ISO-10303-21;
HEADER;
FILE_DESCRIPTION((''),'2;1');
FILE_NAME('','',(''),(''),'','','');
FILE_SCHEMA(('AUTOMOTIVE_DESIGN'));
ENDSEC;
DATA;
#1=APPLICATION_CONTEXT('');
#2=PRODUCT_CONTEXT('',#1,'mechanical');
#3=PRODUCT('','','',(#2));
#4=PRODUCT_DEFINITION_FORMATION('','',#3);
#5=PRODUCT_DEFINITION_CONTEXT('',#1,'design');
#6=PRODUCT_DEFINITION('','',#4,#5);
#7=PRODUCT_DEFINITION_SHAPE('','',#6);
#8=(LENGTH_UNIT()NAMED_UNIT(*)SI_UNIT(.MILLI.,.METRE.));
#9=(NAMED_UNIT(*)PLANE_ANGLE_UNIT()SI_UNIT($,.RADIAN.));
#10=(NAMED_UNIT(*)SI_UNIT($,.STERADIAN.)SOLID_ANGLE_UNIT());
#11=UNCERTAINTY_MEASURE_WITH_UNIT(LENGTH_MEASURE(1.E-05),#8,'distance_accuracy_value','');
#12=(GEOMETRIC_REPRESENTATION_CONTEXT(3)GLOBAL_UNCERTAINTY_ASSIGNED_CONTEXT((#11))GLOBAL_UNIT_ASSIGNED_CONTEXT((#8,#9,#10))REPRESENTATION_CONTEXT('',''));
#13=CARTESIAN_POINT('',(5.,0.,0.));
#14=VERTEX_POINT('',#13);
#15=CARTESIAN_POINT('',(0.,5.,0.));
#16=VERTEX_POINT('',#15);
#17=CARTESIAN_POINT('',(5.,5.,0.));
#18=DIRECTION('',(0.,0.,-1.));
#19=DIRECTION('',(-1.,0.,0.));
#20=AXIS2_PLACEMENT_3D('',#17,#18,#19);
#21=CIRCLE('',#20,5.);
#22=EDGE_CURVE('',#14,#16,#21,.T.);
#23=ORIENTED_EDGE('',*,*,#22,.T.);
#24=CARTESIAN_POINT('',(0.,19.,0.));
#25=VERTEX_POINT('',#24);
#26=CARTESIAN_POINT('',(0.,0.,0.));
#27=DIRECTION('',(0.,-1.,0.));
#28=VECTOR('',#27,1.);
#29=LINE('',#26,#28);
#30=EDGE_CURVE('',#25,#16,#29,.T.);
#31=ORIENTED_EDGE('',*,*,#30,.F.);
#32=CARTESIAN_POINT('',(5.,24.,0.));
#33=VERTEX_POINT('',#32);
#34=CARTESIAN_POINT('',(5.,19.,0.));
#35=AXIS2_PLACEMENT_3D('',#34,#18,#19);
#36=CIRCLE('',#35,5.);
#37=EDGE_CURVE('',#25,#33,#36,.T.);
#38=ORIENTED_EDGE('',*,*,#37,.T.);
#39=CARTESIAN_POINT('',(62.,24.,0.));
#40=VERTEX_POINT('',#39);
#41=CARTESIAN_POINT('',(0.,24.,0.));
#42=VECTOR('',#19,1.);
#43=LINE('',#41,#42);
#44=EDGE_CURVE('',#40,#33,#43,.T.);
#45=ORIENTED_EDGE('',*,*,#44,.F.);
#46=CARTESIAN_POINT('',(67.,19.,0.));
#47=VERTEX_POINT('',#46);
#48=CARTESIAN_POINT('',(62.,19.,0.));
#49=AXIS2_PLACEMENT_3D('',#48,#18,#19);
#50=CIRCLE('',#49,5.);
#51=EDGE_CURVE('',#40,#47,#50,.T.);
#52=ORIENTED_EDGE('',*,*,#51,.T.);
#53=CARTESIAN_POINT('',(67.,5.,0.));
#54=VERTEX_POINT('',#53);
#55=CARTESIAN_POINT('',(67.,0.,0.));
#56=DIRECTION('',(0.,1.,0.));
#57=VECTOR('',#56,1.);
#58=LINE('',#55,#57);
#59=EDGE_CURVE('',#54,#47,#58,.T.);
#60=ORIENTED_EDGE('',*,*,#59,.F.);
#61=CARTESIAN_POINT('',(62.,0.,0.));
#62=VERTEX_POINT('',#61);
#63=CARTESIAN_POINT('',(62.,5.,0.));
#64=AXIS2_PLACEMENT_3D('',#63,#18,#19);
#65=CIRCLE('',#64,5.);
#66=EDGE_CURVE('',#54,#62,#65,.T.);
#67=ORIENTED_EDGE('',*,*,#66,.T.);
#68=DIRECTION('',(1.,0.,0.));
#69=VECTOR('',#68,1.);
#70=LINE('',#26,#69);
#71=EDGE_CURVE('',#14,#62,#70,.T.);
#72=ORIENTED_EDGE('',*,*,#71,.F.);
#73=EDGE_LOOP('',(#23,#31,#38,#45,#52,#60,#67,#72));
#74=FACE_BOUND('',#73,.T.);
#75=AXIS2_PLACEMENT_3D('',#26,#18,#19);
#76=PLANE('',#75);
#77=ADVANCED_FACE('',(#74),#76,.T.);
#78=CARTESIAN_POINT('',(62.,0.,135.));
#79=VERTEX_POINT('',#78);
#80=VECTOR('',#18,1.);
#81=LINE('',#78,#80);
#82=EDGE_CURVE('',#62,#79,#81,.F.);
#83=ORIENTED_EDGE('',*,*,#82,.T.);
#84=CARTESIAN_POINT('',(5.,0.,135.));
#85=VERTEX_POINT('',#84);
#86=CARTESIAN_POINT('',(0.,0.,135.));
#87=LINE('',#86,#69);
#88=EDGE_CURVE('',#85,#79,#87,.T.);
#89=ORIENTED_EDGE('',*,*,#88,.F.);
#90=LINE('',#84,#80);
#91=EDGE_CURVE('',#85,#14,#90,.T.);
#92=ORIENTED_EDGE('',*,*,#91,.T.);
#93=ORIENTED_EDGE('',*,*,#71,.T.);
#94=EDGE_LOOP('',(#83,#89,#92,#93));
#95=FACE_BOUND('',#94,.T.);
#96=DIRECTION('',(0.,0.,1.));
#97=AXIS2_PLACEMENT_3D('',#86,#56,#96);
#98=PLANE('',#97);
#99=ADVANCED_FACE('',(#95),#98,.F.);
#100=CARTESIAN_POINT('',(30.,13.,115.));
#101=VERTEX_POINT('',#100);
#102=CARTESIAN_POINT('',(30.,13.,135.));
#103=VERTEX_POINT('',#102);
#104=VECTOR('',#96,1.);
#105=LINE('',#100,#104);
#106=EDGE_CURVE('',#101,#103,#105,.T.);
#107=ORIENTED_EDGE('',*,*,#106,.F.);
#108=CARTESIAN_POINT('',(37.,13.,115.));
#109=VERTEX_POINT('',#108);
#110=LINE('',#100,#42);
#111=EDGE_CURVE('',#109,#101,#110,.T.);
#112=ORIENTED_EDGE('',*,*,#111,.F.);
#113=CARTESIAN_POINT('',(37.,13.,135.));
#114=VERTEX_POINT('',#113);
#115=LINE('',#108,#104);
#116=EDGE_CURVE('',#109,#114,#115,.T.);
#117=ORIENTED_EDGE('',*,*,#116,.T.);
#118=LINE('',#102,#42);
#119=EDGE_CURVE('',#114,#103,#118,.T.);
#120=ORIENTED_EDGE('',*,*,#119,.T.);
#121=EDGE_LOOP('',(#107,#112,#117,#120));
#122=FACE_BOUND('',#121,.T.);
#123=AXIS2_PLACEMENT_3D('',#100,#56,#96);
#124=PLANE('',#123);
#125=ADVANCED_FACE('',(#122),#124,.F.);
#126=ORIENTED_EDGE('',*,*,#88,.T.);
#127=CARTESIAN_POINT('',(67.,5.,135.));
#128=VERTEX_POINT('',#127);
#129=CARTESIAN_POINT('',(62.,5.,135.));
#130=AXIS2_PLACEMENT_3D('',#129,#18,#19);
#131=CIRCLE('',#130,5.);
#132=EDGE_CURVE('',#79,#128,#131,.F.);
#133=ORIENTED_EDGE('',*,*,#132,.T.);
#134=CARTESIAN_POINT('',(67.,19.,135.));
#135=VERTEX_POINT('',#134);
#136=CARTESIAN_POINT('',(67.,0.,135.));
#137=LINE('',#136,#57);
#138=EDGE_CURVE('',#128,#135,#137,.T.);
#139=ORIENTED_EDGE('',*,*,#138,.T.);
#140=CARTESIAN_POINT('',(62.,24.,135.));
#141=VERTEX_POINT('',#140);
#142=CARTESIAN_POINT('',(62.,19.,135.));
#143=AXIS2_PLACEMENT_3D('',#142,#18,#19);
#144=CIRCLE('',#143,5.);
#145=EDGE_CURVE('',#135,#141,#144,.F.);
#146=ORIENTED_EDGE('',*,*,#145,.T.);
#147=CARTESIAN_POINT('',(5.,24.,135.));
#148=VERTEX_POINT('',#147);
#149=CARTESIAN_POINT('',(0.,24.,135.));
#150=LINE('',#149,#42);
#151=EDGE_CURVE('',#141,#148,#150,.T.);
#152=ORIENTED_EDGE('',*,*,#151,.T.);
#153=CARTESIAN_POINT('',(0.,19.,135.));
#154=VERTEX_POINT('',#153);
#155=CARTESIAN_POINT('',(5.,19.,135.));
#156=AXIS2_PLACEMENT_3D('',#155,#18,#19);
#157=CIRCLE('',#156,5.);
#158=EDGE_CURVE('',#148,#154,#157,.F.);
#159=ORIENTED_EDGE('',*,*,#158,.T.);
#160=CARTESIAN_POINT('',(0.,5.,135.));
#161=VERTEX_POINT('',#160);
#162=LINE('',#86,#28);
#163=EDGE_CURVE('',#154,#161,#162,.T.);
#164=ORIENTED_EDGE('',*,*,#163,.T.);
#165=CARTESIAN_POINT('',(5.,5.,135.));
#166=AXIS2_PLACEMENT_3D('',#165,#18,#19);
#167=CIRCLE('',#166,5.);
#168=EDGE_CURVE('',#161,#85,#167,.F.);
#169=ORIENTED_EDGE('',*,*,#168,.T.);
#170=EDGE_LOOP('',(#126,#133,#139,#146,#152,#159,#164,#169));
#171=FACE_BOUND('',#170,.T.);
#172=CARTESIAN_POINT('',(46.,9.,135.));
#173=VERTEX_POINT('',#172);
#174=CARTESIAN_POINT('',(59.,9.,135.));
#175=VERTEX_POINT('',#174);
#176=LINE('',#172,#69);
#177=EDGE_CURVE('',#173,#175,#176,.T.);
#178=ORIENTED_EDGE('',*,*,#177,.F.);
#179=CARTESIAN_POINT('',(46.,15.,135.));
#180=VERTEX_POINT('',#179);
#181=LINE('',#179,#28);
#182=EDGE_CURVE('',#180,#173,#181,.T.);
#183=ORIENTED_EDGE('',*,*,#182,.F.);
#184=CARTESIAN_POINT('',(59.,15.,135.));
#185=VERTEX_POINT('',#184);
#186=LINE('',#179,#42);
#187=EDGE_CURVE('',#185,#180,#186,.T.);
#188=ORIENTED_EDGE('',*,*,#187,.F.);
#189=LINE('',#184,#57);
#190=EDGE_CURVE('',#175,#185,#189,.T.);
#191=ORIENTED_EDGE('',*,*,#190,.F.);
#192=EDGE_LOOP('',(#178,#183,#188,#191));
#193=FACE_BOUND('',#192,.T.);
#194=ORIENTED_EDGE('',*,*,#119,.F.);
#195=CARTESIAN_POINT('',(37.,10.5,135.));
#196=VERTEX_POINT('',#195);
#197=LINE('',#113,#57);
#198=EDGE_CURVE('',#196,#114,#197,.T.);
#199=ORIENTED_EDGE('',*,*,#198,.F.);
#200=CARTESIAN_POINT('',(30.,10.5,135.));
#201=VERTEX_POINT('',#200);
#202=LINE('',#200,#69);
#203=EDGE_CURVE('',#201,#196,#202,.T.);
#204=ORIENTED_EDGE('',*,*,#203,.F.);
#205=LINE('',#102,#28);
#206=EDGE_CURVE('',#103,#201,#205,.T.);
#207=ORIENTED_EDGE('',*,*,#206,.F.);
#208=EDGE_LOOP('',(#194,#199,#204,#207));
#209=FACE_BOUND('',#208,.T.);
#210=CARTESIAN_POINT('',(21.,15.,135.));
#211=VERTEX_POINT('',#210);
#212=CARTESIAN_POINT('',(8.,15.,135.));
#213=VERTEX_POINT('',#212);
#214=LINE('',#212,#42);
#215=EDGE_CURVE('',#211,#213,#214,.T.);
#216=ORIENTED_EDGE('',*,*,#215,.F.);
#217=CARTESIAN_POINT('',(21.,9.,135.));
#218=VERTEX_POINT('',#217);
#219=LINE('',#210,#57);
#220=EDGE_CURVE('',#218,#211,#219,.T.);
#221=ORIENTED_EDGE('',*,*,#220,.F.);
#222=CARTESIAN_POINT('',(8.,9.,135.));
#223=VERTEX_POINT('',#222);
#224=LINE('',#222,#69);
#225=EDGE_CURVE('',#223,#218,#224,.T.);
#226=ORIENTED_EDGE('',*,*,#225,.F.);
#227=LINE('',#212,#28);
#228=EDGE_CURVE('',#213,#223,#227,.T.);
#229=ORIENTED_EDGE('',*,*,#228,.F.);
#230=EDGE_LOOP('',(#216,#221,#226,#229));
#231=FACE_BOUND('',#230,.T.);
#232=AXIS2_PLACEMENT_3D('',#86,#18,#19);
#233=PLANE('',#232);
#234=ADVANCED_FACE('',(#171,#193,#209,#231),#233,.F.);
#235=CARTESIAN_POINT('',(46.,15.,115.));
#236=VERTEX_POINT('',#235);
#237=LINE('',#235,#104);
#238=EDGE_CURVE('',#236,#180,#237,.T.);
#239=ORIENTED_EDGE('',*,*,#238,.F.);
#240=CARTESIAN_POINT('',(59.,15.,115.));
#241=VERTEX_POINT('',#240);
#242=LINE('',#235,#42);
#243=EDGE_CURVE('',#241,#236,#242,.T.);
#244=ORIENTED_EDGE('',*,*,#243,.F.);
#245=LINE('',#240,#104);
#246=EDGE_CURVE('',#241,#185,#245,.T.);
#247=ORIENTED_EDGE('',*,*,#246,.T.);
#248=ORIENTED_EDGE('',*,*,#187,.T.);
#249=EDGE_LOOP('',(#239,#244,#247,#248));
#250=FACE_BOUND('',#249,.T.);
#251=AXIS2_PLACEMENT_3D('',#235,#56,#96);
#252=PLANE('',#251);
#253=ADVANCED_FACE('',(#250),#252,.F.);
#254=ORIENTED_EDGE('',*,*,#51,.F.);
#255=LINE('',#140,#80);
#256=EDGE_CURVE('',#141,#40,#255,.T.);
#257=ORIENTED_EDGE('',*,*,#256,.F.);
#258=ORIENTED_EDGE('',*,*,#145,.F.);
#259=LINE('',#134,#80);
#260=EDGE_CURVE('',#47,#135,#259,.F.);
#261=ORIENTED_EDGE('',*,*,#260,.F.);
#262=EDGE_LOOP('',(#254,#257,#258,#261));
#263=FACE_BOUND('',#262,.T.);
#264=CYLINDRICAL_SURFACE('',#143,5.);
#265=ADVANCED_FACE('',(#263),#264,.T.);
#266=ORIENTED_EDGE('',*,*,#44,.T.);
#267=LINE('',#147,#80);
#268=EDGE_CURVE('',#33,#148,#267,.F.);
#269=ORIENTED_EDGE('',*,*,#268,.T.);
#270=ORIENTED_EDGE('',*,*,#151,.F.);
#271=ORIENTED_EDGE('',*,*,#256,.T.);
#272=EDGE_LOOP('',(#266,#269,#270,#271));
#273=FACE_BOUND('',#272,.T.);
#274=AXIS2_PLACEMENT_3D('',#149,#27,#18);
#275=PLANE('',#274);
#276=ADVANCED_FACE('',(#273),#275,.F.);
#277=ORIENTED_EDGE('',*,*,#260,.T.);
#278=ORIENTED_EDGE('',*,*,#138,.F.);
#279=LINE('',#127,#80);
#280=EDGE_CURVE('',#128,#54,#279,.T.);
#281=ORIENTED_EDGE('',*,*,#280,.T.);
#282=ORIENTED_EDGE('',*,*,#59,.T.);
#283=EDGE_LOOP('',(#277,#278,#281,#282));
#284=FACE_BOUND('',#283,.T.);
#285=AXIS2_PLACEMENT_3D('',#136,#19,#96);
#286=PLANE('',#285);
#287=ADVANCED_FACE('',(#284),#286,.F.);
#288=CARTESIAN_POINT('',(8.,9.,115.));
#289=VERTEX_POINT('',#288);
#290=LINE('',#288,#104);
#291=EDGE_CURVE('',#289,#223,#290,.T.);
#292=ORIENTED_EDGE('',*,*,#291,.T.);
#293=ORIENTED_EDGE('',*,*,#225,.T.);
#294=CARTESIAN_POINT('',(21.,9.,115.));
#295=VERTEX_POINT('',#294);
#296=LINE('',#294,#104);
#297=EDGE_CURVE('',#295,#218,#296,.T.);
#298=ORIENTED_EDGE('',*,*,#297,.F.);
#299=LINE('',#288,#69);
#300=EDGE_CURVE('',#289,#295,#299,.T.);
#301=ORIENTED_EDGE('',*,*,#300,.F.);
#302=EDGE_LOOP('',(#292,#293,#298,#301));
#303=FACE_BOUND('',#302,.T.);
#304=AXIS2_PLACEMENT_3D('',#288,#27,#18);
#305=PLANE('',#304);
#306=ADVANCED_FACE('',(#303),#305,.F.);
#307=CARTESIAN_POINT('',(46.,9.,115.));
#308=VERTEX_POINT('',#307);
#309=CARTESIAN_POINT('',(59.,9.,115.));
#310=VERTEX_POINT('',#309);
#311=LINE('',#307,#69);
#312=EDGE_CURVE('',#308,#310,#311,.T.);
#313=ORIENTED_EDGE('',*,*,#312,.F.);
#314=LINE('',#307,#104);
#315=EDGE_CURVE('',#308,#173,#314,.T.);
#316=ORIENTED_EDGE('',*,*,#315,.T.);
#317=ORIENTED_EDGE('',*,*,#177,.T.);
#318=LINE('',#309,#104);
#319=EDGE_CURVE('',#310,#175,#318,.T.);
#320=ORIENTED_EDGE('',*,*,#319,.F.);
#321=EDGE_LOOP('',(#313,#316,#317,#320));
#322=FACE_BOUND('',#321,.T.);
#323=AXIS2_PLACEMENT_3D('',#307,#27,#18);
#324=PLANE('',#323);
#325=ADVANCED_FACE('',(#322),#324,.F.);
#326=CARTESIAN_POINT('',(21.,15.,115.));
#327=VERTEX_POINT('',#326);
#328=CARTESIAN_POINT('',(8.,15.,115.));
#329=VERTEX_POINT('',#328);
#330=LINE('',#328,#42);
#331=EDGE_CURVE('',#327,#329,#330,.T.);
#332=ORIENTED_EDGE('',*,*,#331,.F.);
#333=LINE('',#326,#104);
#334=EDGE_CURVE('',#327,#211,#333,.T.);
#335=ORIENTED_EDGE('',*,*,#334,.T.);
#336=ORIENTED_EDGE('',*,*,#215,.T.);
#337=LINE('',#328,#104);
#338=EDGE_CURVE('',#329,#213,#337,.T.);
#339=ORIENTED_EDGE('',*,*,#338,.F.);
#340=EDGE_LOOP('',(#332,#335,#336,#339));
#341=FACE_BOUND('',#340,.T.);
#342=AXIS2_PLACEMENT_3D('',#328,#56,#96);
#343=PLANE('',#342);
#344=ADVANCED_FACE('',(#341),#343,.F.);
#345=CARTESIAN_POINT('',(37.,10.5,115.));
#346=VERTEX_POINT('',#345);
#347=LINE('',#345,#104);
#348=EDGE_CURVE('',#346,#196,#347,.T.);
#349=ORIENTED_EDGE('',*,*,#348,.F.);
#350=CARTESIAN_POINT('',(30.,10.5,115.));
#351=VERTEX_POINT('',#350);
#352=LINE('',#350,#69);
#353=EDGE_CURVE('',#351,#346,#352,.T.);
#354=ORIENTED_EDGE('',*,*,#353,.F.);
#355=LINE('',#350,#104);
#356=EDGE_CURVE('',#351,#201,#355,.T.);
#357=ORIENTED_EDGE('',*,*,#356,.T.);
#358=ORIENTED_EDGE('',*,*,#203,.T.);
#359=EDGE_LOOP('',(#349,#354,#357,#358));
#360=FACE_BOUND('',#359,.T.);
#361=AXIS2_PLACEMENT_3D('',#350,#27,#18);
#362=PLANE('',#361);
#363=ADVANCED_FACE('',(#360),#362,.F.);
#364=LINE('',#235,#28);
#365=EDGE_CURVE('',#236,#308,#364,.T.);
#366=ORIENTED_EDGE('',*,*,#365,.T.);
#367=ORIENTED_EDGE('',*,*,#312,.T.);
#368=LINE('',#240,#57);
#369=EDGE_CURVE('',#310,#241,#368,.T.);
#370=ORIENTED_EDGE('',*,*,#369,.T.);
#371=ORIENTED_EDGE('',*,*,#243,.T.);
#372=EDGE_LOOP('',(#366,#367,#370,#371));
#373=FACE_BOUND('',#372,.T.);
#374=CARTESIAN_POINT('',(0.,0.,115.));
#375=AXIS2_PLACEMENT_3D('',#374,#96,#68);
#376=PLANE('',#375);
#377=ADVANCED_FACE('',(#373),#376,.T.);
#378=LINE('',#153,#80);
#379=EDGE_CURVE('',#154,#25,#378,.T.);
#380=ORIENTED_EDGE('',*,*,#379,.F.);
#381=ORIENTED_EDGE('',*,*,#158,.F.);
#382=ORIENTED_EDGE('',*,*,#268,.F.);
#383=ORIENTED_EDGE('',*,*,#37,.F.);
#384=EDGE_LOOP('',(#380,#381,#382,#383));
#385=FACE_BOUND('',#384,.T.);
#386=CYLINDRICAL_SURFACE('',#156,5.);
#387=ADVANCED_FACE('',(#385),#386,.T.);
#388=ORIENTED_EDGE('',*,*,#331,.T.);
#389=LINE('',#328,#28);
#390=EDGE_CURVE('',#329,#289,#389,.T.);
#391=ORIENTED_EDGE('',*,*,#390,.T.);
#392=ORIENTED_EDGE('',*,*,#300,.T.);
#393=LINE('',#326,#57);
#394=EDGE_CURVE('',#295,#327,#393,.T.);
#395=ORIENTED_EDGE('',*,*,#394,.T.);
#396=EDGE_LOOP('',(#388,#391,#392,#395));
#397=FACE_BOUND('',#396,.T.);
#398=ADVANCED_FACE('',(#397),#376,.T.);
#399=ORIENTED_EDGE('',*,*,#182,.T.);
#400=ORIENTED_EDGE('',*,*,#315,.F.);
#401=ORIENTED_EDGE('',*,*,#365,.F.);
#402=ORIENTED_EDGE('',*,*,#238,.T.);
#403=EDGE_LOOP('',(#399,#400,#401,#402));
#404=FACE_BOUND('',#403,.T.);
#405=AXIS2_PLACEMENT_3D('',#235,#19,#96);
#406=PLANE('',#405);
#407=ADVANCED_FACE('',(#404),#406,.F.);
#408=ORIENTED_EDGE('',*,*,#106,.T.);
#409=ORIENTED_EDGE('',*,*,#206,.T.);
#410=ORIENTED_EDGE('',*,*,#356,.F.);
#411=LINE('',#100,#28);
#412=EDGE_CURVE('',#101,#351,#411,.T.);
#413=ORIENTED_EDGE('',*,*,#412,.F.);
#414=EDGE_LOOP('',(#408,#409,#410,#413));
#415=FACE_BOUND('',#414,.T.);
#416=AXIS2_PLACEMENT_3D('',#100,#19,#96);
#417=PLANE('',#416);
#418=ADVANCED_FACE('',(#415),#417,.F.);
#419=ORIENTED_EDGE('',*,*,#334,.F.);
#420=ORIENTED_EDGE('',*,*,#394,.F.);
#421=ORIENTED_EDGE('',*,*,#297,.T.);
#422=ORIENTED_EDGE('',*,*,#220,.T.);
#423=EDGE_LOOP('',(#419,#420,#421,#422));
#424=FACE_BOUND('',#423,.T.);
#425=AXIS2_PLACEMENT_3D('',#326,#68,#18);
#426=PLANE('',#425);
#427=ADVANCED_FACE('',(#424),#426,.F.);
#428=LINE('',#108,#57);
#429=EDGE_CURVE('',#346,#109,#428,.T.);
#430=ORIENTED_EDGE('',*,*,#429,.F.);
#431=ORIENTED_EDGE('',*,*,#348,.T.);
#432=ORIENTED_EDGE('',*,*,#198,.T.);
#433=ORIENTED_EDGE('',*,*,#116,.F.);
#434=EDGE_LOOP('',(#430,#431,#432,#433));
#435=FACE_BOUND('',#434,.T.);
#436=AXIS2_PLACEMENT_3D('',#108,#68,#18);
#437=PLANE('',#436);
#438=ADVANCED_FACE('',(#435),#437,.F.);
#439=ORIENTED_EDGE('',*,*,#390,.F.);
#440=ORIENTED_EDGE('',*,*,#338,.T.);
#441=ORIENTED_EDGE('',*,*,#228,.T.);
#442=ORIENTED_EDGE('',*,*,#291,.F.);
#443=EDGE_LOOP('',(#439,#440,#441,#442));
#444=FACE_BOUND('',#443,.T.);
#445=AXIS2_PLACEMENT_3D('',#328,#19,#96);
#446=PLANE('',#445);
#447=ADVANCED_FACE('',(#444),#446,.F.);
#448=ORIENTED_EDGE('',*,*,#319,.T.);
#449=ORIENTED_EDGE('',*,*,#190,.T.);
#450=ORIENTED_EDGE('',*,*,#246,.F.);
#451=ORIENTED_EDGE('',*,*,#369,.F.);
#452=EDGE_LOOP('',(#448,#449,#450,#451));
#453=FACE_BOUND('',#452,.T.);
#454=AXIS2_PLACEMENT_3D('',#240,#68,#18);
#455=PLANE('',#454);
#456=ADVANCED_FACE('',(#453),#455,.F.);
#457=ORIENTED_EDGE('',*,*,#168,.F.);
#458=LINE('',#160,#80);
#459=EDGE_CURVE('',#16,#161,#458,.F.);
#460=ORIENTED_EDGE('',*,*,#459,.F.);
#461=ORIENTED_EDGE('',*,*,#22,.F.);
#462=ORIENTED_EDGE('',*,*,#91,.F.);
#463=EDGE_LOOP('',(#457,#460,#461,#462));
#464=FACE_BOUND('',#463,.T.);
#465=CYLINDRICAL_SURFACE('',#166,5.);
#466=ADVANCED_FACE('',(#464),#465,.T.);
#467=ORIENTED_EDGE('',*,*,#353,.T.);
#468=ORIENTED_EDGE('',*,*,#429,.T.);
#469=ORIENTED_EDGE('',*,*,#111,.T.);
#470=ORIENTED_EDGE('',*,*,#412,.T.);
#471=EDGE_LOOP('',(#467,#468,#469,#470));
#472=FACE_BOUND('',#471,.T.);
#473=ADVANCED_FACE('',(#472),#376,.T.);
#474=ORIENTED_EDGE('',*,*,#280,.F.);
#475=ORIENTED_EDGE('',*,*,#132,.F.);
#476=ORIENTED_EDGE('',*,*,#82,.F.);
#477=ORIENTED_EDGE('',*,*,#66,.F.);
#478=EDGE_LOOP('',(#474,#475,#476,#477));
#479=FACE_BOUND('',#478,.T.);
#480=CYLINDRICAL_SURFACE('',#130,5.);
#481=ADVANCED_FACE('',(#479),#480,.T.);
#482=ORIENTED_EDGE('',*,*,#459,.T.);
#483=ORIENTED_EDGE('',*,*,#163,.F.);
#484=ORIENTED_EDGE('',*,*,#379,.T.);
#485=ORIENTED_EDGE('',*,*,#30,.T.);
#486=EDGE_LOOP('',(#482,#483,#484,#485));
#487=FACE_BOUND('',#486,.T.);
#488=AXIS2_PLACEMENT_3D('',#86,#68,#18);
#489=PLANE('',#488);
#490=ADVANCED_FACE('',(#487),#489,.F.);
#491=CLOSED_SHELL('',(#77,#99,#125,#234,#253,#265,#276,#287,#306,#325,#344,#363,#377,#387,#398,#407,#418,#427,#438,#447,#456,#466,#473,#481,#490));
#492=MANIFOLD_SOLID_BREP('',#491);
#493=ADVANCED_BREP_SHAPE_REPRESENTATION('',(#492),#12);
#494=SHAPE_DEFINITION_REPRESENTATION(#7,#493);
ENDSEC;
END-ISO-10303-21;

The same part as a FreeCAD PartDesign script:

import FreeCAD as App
import Part
import Sketcher

V = App.Vector


def edges_at(feature, points):
    """Names of the edges that pass closest to the given points."""
    edges = feature.Shape.Edges
    near = lambda p: min(range(len(edges)), key=lambda i: edges[i].distToShape(Part.Vertex(*p))[0])
    return sorted({f"Edge{near(p) + 1}" for p in points})


def add_polygon(sketch, points):
    """Adds a closed chain of lines whose ends are joined by coincident constraints."""
    first, n = sketch.GeometryCount, len(points)
    for a, b in zip(points, points[1:] + points[:1]):
        sketch.addGeometry(Part.LineSegment(App.Vector(*a, 0), App.Vector(*b, 0)), False)
    for i in range(n):
        sketch.addConstraint(Sketcher.Constraint("Coincident", first + i, 2, first + (i + 1) % n, 1))

doc = App.newDocument("Part")
body = doc.addObject("PartDesign::Body", "Body")

sketch1 = body.newObject("Sketcher::SketchObject", "Sketch")
sketch1.AttachmentSupport = (doc.getObject("XY_Plane"), [""])
sketch1.MapMode = "FlatFace"
add_polygon(sketch1, [(0, 24), (0, 0), (67, 0), (67, 24)])
sketch1.addConstraint([
    Sketcher.Constraint("Vertical", 0),
    Sketcher.Constraint("Horizontal", 1),
    Sketcher.Constraint("Vertical", 2),
    Sketcher.Constraint("Horizontal", 3),
    Sketcher.Constraint("Coincident", 0, 2, -1, 1),
    Sketcher.Constraint("DistanceX", 1, 1, 1, 2, 67.0),
    Sketcher.Constraint("DistanceY", 0, 2, 0, 1, 24.0),
])
pad1 = body.newObject("PartDesign::Pad", "Pad")
pad1.Profile = sketch1
pad1.Length = 135
doc.recompute()

fillet = body.newObject("PartDesign::Fillet", "Fillet")
fillet.Base = (pad1, edges_at(pad1, [
    (0, 24, 67.5),
    (67, 24, 67.5),
    (67, 0, 67.5),
    (0, 0, 67.5),
]))
fillet.Radius = 5

sketch2 = body.newObject("Sketcher::SketchObject", "Sketch001")
sketch2.AttachmentSupport = (doc.getObject("XY_Plane"), [""])
sketch2.MapMode = "FlatFace"
sketch2.AttachmentOffset = App.Placement(V(0, 0, 135), App.Rotation())
add_polygon(sketch2, [(8, 15), (8, 9), (21, 9), (21, 15)])
add_polygon(sketch2, [(46, 15), (46, 9), (59, 9), (59, 15)])
add_polygon(sketch2, [(30, 13), (30, 10.5), (37, 10.5), (37, 13)])
sketch2.addConstraint([
    Sketcher.Constraint("Vertical", 0),
    Sketcher.Constraint("Horizontal", 1),
    Sketcher.Constraint("Vertical", 2),
    Sketcher.Constraint("Horizontal", 3),
    Sketcher.Constraint("Vertical", 4),
    Sketcher.Constraint("Horizontal", 5),
    Sketcher.Constraint("Vertical", 6),
    Sketcher.Constraint("Horizontal", 7),
    Sketcher.Constraint("Vertical", 8),
    Sketcher.Constraint("Horizontal", 9),
    Sketcher.Constraint("Vertical", 10),
    Sketcher.Constraint("Horizontal", 11),
    Sketcher.Constraint("Horizontal", 1, 2, 4, 2),
    Sketcher.Constraint("Horizontal", 3, 2, 6, 2),
    Sketcher.Constraint("Equal", 3, 5),
    Sketcher.Constraint("DistanceX", 1, 1, 1, 2, 13.0),
    Sketcher.Constraint("DistanceX", 9, 1, 9, 2, 7.0),
    Sketcher.Constraint("DistanceY", 0, 2, 0, 1, 6.0),
    Sketcher.Constraint("DistanceY", 8, 2, 8, 1, 2.5),
    Sketcher.Constraint("DistanceX", -1, 1, 0, 2, 8.0),
    Sketcher.Constraint("DistanceY", -1, 1, 0, 2, 9.0),
    Sketcher.Constraint("DistanceX", -1, 1, 4, 2, 46.0),
    Sketcher.Constraint("DistanceX", -1, 1, 8, 2, 30.0),
    Sketcher.Constraint("DistanceY", -1, 1, 10, 2, 13.0),
])
pocket1 = body.newObject("PartDesign::Pocket", "Pocket")
pocket1.Profile = sketch2
pocket1.Length = 20

doc.recompute()
